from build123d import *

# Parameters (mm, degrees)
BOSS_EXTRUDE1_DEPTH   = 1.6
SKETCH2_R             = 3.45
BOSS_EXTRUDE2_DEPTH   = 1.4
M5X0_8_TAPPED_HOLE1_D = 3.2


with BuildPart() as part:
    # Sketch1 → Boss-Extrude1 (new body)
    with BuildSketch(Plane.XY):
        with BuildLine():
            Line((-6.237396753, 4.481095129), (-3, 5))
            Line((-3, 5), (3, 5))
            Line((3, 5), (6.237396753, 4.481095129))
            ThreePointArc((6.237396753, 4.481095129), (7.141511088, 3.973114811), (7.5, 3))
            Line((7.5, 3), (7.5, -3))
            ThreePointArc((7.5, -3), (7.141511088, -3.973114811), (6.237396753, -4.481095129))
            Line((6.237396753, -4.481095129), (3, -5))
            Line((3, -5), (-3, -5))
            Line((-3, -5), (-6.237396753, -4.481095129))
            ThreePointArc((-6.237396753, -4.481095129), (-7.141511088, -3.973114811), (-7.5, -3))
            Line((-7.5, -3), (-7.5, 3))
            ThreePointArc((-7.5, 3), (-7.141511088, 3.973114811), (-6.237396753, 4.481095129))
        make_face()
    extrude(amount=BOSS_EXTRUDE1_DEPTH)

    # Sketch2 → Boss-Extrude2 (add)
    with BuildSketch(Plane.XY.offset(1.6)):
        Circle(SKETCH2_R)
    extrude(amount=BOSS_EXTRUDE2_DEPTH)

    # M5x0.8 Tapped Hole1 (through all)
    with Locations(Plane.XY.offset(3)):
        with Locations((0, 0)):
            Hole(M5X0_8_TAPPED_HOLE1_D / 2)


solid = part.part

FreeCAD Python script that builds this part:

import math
import FreeCAD as App
import Part
import Sketcher
from FreeCAD import Vector
Q = App.Units.Quantity

doc = App.newDocument("Part")
body = doc.addObject("PartDesign::Body", "Body")

# Sketch on XY plane
sketch1 = body.newObject("Sketcher::SketchObject", "Sketch")
sketch1.AttachmentSupport = (doc.getObject("XY_Plane"), [""])
sketch1.MapMode = "FlatFace"
sketch1.addGeometry([
    Part.LineSegment(Vector(-3, 5, 0), Vector(-6.2, 4.5, 0)),  # 0
    Part.ArcOfCircle(Part.Circle(Vector(-6, 3, 0), Vector(0, 0, 1), 1.5), math.radians(99), math.radians(180)),  # 1
    Part.LineSegment(Vector(-7.5, 3, 0), Vector(-7.5, -3, 0)),  # 2
    Part.ArcOfCircle(Part.Circle(Vector(-6, -3, 0), Vector(0, 0, 1), 1.5), math.radians(180), math.radians(261)),  # 3
    Part.LineSegment(Vector(-6.2, -4.5, 0), Vector(-3, -5, 0)),  # 4
    Part.LineSegment(Vector(-3, -5, 0), Vector(3, -5, 0)),  # 5
    Part.LineSegment(Vector(3, -5, 0), Vector(6.2, -4.5, 0)),  # 6
    Part.ArcOfCircle(Part.Circle(Vector(6, -3, 0), Vector(0, 0, 1), 1.5), math.radians(-81), math.radians(0)),  # 7
    Part.LineSegment(Vector(7.5, -3, 0), Vector(7.5, 3, 0)),  # 8
    Part.ArcOfCircle(Part.Circle(Vector(6, 3, 0), Vector(0, 0, 1), 1.5), math.radians(0), math.radians(81)),  # 9
    Part.LineSegment(Vector(6.2, 4.5, 0), Vector(3, 5, 0)),  # 10
    Part.LineSegment(Vector(3, 5, 0), Vector(-3, 5, 0)),  # 11
], False)
sketch1.addConstraint([
    Sketcher.Constraint("Tangent", 0, 2, 1, 1),
    Sketcher.Constraint("Tangent", 1, 2, 2, 1),
    Sketcher.Constraint("Tangent", 2, 2, 3, 1),
    Sketcher.Constraint("Tangent", 3, 2, 4, 1),
    Sketcher.Constraint("Coincident", 4, 2, 5, 1),
    Sketcher.Constraint("Coincident", 5, 2, 6, 1),
    Sketcher.Constraint("Tangent", 6, 2, 7, 1),
    Sketcher.Constraint("Tangent", 7, 2, 8, 1),
    Sketcher.Constraint("Tangent", 8, 2, 9, 1),
    Sketcher.Constraint("Tangent", 9, 2, 10, 1),
    Sketcher.Constraint("Coincident", 10, 2, 11, 1),
    Sketcher.Constraint("Coincident", 11, 2, 0, 1),
    Sketcher.Constraint("Vertical", 2),
    Sketcher.Constraint("Horizontal", 5),
    Sketcher.Constraint("Vertical", 8),
    Sketcher.Constraint("Horizontal", 11),
    Sketcher.Constraint("Equal", 1, 3),
    Sketcher.Constraint("Equal", 3, 7),
    Sketcher.Constraint("Equal", 7, 9),
    Sketcher.Constraint("Symmetric", 1, 3, 7, 3, -1, 1),
    Sketcher.Constraint("Symmetric", 3, 2, 9, 2, -1, 1),
    Sketcher.Constraint("Symmetric", 5, 2, 11, 2, -1, 1),
    Sketcher.Constraint("Symmetric", 3, 2, 6, 2, -2),
    Sketcher.Constraint("Equal", 11, 2),
    Sketcher.Constraint("Radius", 1, Q("1.5 mm")),
    Sketcher.Constraint("DistanceX", 5, 1, 5, 2, Q("6 mm")),
    Sketcher.Constraint("DistanceX", 1, 3, -1, 1, Q("6 mm")),
    Sketcher.Constraint("DistanceY", 4, 2, -1, 1, Q("5 mm")),
])
pad1 = body.newObject("PartDesign::Pad", "Pad")
pad1.Profile = sketch1
pad1.Length = 1.6

# Sketch on XY plane
sketch2 = body.newObject("Sketcher::SketchObject", "Sketch001")
sketch2.AttachmentSupport = (doc.getObject("XY_Plane"), [""])
sketch2.MapMode = "FlatFace"
sketch2.AttachmentOffset = App.Placement(Vector(0, 0, 1.6), App.Rotation())
sketch2.addGeometry(Part.Circle(Vector(0, 0, 0), Vector(0, 0, 1), 3.5), False)
sketch2.addConstraint([
    Sketcher.Constraint("Coincident", 0, 3, -1, 1),
    Sketcher.Constraint("Diameter", 0, Q("6.9 mm")),
])
pad2 = body.newObject("PartDesign::Pad", "Pad001")
pad2.Profile = sketch2
pad2.Length = 1.4

# Sketch on XY plane
sketch3 = body.newObject("Sketcher::SketchObject", "Sketch002")
sketch3.AttachmentSupport = (doc.getObject("XY_Plane"), [""])
sketch3.MapMode = "FlatFace"
sketch3.AttachmentOffset = App.Placement(Vector(0, 0, 3), App.Rotation())
sketch3.addGeometry(Part.Circle(Vector(0, 0, 0), Vector(0, 0, 1), 1.6), False)
sketch3.addConstraint([
    Sketcher.Constraint("Coincident", 0, 3, -1, 1),
    Sketcher.Constraint("Diameter", 0, Q("3.2 mm")),
])
doc.recompute()
hole = body.newObject("PartDesign::Hole", "Hole")
hole.Profile = sketch3
hole.ThreadType = "None"
hole.Diameter = 3.2
hole.DepthType = "ThroughAll"

doc.recompute()
